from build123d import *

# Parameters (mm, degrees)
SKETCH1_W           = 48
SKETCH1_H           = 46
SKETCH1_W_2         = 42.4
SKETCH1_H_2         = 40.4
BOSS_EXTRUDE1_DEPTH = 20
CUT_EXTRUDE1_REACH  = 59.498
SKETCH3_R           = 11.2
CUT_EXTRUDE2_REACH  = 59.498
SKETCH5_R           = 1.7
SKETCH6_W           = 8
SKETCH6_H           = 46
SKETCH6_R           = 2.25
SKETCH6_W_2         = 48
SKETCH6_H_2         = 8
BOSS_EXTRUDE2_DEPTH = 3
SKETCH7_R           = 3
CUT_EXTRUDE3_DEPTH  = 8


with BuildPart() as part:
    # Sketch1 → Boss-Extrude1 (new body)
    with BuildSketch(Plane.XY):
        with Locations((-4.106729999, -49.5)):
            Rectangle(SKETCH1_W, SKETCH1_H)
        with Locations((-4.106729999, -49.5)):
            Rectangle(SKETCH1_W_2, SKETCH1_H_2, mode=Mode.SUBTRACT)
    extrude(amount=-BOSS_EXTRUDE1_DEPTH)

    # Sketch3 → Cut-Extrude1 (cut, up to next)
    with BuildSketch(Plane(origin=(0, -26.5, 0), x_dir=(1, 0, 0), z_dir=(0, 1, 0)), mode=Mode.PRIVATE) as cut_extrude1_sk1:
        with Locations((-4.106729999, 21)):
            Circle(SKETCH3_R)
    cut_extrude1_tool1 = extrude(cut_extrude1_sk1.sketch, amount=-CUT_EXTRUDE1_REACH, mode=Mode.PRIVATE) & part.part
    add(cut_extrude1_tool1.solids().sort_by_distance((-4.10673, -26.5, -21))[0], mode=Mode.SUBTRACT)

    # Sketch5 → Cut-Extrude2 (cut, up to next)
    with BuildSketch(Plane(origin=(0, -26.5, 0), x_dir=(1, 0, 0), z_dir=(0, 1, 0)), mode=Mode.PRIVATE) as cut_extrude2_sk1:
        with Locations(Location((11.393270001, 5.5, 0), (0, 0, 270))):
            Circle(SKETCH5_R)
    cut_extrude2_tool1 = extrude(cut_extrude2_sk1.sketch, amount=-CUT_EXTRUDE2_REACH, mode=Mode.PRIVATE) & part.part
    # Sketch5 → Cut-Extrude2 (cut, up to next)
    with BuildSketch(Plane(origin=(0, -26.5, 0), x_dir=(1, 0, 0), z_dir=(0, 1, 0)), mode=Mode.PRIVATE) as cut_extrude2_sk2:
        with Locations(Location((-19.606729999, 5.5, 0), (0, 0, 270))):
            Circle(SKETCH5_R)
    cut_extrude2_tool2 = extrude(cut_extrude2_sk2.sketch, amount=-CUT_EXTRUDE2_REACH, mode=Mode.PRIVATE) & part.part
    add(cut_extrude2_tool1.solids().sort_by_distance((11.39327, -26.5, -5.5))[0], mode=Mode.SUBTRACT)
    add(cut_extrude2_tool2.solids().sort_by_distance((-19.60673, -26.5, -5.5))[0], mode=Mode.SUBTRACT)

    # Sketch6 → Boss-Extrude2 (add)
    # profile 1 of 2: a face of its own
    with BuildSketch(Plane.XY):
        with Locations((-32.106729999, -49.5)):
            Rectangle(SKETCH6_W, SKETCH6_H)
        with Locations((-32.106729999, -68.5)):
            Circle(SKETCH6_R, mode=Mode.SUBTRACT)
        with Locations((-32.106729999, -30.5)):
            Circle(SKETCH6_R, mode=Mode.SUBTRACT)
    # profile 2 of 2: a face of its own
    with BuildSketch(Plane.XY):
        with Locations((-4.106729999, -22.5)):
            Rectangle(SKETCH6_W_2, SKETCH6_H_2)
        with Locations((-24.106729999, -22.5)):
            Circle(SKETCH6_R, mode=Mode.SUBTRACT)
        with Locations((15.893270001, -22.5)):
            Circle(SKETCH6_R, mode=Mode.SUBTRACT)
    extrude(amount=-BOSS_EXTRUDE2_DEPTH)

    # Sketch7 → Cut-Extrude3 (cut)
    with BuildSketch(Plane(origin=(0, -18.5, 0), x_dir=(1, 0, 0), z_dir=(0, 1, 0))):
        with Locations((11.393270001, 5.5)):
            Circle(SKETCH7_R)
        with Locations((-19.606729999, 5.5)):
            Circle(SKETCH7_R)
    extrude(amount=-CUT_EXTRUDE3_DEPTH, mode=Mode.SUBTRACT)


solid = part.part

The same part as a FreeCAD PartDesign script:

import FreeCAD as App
import Part
import Sketcher

V = App.Vector
Q = App.Units.Quantity


def add_polygon(sketch, points):
    """Adds a closed chain of lines whose ends are joined by coincident constraints."""
    first, n = sketch.GeometryCount, len(points)
    for a, b in zip(points, points[1:] + points[:1]):
        sketch.addGeometry(Part.LineSegment(App.Vector(*a, 0), App.Vector(*b, 0)), False)
    for i in range(n):
        sketch.addConstraint(Sketcher.Constraint("Coincident", first + i, 2, first + (i + 1) % n, 1))

doc = App.newDocument("Part")
params = doc.addObject("Spreadsheet::Sheet", "Params")
for row, (alias, value) in enumerate([
    ("sketch1_width", "48 mm"),
    ("sketch1_height", "46 mm"),
    ("sketch1_width2", "42.4 mm"),
    ("sketch1_height2", "40.4 mm"),
    ("pad1_length", "20 mm"),
    ("sketch2_diameter", "22.4 mm"),
    ("pocket1_length", "2.8 mm"),
    ("sketch3_diameter", "3.4 mm"),
    ("sketch4_diameter", "3.4 mm"),
    ("sketch5_diameter", "4.5 mm"),
    ("sketch5_width", "8 mm"),
    ("sketch5_width2", "48 mm"),
    ("sketch5_height", "46 mm"),
    ("pad2_length", "3 mm"),
    ("sketch6_diameter", "6 mm"),
    ("pocket4_length", "8 mm"),
], start=1):
    params.set(f"A{row}", alias)
    params.set(f"B{row}", "=" + value)
    params.setAlias(f"B{row}", alias)

body = doc.addObject("PartDesign::Body", "Body")

sketch1 = doc.addObject("Sketcher::SketchObject", "Sketch")
body.addObject(sketch1)
sketch1.AttachmentSupport = (doc.XY_Plane, [""])
sketch1.MapMode = "FlatFace"
add_polygon(sketch1, [(-28.10673, -26.5), (-28.10673, -72.5), (19.89327, -72.5), (19.89327, -26.5)])
add_polygon(sketch1, [(17.09327, -69.7), (-25.30673, -69.7), (-25.30673, -29.3), (17.09327, -29.3)])
sketch1.addConstraint([
    Sketcher.Constraint("Vertical", 0),
    Sketcher.Constraint("Horizontal", 1),
    Sketcher.Constraint("Vertical", 2),
    Sketcher.Constraint("Horizontal", 3),
    Sketcher.Constraint("Horizontal", 4),
    Sketcher.Constraint("Vertical", 5),
    Sketcher.Constraint("Horizontal", 6),
    Sketcher.Constraint("Vertical", 7),
    Sketcher.Constraint("DistanceX", 1, 1, 1, 2, Q("48 mm")),
    Sketcher.Constraint("DistanceY", 0, 2, 0, 1, Q("46 mm")),
    Sketcher.Constraint("DistanceX", 4, 2, 4, 1, Q("42.4 mm")),
    Sketcher.Constraint("DistanceY", 5, 1, 5, 2, Q("40.4 mm")),
    Sketcher.Constraint("DistanceY", 0, 2, -1, 1, Q("72.5 mm")),
    Sketcher.Constraint("DistanceY", 4, 2, -1, 1, Q("69.7 mm")),
    Sketcher.Constraint("DistanceX", 0, 2, 4, 2, Q("2.8 mm")),
    Sketcher.Constraint("DistanceX", 0, 2, -1, 1, Q("28.10673 mm")),
])
sketch1.setExpression("Constraints[16]", "Params.sketch1_width")
sketch1.setExpression("Constraints[17]", "Params.sketch1_height")
sketch1.setExpression("Constraints[18]", "Params.sketch1_width2")
sketch1.setExpression("Constraints[19]", "Params.sketch1_height2")
pad1 = doc.addObject("PartDesign::Pad", "Pad")
body.addObject(pad1)
pad1.Profile = sketch1
pad1.setExpression("Length", "Params.pad1_length")
pad1.Reversed = True

sketch2 = doc.addObject("Sketcher::SketchObject", "Sketch001")
body.addObject(sketch2)
sketch2.AttachmentSupport = (doc.XZ_Plane, [""])
sketch2.MapMode = "FlatFace"
sketch2.AttachmentOffset = App.Placement(V(0, 0, 26.5), App.Rotation())
sketch2.addGeometry(Part.Circle(V(-4.10673, -21, 0), V(0, 0, 1), 11.2), False)
sketch2.addConstraint([
    Sketcher.Constraint("Diameter", 0, Q("22.4 mm")),
    Sketcher.Constraint("DistanceY", 0, 3, -1, 1, Q("21 mm")),
    Sketcher.Constraint("DistanceX", 0, 3, -1, 1, Q("4.10673 mm")),
])
sketch2.setExpression("Constraints[0]", "Params.sketch2_diameter")
pocket1 = doc.addObject("PartDesign::Pocket", "Pocket")
body.addObject(pocket1)
pocket1.Profile = sketch2
pocket1.setExpression("Length", "Params.pocket1_length")
pocket1.Reversed = True

sketch3 = doc.addObject("Sketcher::SketchObject", "Sketch002")
body.addObject(sketch3)
sketch3.AttachmentSupport = (doc.XZ_Plane, [""])
sketch3.MapMode = "FlatFace"
sketch3.AttachmentOffset = App.Placement(V(0, 0, 26.5), App.Rotation())
sketch3.addGeometry(Part.Circle(V(11.39327, -5.5, 0), V(0, 0, 1), 1.7), False)
sketch3.addConstraint([
    Sketcher.Constraint("Diameter", 0, Q("3.4 mm")),
    Sketcher.Constraint("DistanceY", 0, 3, -1, 1, Q("5.5 mm")),
    Sketcher.Constraint("DistanceX", -1, 1, 0, 3, Q("11.39327 mm")),
])
sketch3.setExpression("Constraints[0]", "Params.sketch3_diameter")
pocket2 = doc.addObject("PartDesign::Pocket", "Pocket001")
body.addObject(pocket2)
pocket2.Profile = sketch3
pocket2.Type = "UpToFirst"
pocket2.Reversed = True

sketch4 = doc.addObject("Sketcher::SketchObject", "Sketch003")
body.addObject(sketch4)
sketch4.AttachmentSupport = (doc.XZ_Plane, [""])
sketch4.MapMode = "FlatFace"
sketch4.AttachmentOffset = App.Placement(V(0, 0, 26.5), App.Rotation())
sketch4.addGeometry(Part.Circle(V(-19.60673, -5.5, 0), V(0, 0, 1), 1.7), False)
sketch4.addConstraint([
    Sketcher.Constraint("Diameter", 0, Q("3.4 mm")),
    Sketcher.Constraint("DistanceY", 0, 3, -1, 1, Q("5.5 mm")),
    Sketcher.Constraint("DistanceX", 0, 3, -1, 1, Q("19.60673 mm")),
])
sketch4.setExpression("Constraints[0]", "Params.sketch4_diameter")
pocket3 = doc.addObject("PartDesign::Pocket", "Pocket002")
body.addObject(pocket3)
pocket3.Profile = sketch4
pocket3.Type = "UpToFirst"
pocket3.Reversed = True

sketch5 = doc.addObject("Sketcher::SketchObject", "Sketch004")
body.addObject(sketch5)
sketch5.AttachmentSupport = (doc.XY_Plane, [""])
sketch5.MapMode = "FlatFace"
add_polygon(sketch5, [(-36.10673, -26.5), (-36.10673, -72.5), (-28.10673, -72.5), (-28.10673, -26.5)])
sketch5.addGeometry(Part.Circle(V(-32.10673, -68.5, 0), V(0, 0, 1), 2.25), False)
sketch5.addGeometry(Part.Circle(V(-32.10673, -30.5, 0), V(0, 0, 1), 2.25), False)
add_polygon(sketch5, [(-28.10673, -18.5), (-28.10673, -26.5), (19.89327, -26.5), (19.89327, -18.5)])
sketch5.addGeometry(Part.Circle(V(-24.10673, -22.5, 0), V(0, 0, 1), 2.25), False)
sketch5.addGeometry(Part.Circle(V(15.89327, -22.5, 0), V(0, 0, 1), 2.25), False)
sketch5.addConstraint([
    Sketcher.Constraint("Vertical", 0),
    Sketcher.Constraint("Horizontal", 1),
    Sketcher.Constraint("Vertical", 2),
    Sketcher.Constraint("Horizontal", 3),
    Sketcher.Constraint("Vertical", 6),
    Sketcher.Constraint("Horizontal", 7),
    Sketcher.Constraint("Vertical", 8),
    Sketcher.Constraint("Horizontal", 9),
    Sketcher.Constraint("Coincident", 6, 2, 2, 2),
    Sketcher.Constraint("Equal", 4, 5),
    Sketcher.Constraint("Equal", 5, 10),
    Sketcher.Constraint("Equal", 10, 11),
    Sketcher.Constraint("Horizontal", 10, 3, 11, 3),
    Sketcher.Constraint("Vertical", 4, 3, 5, 3),
    Sketcher.Constraint("Equal", 3, 6),
    Sketcher.Constraint("Diameter", 4, Q("4.5 mm")),
    Sketcher.Constraint("DistanceX", 1, 1, 1, 2, Q("8 mm")),
    Sketcher.Constraint("DistanceX", 7, 1, 7, 2, Q("48 mm")),
    Sketcher.Constraint("DistanceY", 0, 2, 0, 1, Q("46 mm")),
    Sketcher.Constraint("DistanceY", 4, 3, 5, 3, Q("38 mm")),
    Sketcher.Constraint("DistanceX", 5, 3, 10, 3, Q("8 mm")),
    Sketcher.Constraint("DistanceY", 5, 3, 10, 3, Q("8 mm")),
    Sketcher.Constraint("DistanceX", 10, 3, 11, 3, Q("40 mm")),
    Sketcher.Constraint("DistanceX", 0, 2, 4, 3, Q("4 mm")),
    Sketcher.Constraint("DistanceY", 0, 2, 4, 3, Q("4 mm")),
    Sketcher.Constraint("DistanceY", 4, 3, -1, 1, Q("68.5 mm")),
    Sketcher.Constraint("DistanceX", 4, 3, -1, 1, Q("32.10673 mm")),
])
sketch5.setExpression("Constraints[23]", "Params.sketch5_diameter")
sketch5.setExpression("Constraints[24]", "Params.sketch5_width")
sketch5.setExpression("Constraints[25]", "Params.sketch5_width2")
sketch5.setExpression("Constraints[26]", "Params.sketch5_height")
pad2 = doc.addObject("PartDesign::Pad", "Pad001")
body.addObject(pad2)
pad2.Profile = sketch5
pad2.setExpression("Length", "Params.pad2_length")
pad2.Reversed = True

sketch6 = doc.addObject("Sketcher::SketchObject", "Sketch005")
body.addObject(sketch6)
sketch6.AttachmentSupport = (doc.XZ_Plane, [""])
sketch6.MapMode = "FlatFace"
sketch6.AttachmentOffset = App.Placement(V(0, 0, 18.5), App.Rotation())
sketch6.addGeometry([
    Part.Circle(V(11.39327, -5.5, 0), V(0, 0, 1), 3),
    Part.Circle(V(-19.60673, -5.5, 0), V(0, 0, 1), 3),
], False)
sketch6.addConstraint([
    Sketcher.Constraint("Equal", 0, 1),
    Sketcher.Constraint("Horizontal", 0, 3, 1, 3),
    Sketcher.Constraint("Diameter", 0, Q("6 mm")),
    Sketcher.Constraint("DistanceX", 1, 3, 0, 3, Q("31 mm")),
    Sketcher.Constraint("DistanceY", 0, 3, -1, 1, Q("5.5 mm")),
    Sketcher.Constraint("DistanceX", -1, 1, 0, 3, Q("11.39327 mm")),
])
sketch6.setExpression("Constraints[2]", "Params.sketch6_diameter")
pocket4 = doc.addObject("PartDesign::Pocket", "Pocket003")
body.addObject(pocket4)
pocket4.Profile = sketch6
pocket4.setExpression("Length", "Params.pocket4_length")
pocket4.Reversed = True

doc.recompute()
